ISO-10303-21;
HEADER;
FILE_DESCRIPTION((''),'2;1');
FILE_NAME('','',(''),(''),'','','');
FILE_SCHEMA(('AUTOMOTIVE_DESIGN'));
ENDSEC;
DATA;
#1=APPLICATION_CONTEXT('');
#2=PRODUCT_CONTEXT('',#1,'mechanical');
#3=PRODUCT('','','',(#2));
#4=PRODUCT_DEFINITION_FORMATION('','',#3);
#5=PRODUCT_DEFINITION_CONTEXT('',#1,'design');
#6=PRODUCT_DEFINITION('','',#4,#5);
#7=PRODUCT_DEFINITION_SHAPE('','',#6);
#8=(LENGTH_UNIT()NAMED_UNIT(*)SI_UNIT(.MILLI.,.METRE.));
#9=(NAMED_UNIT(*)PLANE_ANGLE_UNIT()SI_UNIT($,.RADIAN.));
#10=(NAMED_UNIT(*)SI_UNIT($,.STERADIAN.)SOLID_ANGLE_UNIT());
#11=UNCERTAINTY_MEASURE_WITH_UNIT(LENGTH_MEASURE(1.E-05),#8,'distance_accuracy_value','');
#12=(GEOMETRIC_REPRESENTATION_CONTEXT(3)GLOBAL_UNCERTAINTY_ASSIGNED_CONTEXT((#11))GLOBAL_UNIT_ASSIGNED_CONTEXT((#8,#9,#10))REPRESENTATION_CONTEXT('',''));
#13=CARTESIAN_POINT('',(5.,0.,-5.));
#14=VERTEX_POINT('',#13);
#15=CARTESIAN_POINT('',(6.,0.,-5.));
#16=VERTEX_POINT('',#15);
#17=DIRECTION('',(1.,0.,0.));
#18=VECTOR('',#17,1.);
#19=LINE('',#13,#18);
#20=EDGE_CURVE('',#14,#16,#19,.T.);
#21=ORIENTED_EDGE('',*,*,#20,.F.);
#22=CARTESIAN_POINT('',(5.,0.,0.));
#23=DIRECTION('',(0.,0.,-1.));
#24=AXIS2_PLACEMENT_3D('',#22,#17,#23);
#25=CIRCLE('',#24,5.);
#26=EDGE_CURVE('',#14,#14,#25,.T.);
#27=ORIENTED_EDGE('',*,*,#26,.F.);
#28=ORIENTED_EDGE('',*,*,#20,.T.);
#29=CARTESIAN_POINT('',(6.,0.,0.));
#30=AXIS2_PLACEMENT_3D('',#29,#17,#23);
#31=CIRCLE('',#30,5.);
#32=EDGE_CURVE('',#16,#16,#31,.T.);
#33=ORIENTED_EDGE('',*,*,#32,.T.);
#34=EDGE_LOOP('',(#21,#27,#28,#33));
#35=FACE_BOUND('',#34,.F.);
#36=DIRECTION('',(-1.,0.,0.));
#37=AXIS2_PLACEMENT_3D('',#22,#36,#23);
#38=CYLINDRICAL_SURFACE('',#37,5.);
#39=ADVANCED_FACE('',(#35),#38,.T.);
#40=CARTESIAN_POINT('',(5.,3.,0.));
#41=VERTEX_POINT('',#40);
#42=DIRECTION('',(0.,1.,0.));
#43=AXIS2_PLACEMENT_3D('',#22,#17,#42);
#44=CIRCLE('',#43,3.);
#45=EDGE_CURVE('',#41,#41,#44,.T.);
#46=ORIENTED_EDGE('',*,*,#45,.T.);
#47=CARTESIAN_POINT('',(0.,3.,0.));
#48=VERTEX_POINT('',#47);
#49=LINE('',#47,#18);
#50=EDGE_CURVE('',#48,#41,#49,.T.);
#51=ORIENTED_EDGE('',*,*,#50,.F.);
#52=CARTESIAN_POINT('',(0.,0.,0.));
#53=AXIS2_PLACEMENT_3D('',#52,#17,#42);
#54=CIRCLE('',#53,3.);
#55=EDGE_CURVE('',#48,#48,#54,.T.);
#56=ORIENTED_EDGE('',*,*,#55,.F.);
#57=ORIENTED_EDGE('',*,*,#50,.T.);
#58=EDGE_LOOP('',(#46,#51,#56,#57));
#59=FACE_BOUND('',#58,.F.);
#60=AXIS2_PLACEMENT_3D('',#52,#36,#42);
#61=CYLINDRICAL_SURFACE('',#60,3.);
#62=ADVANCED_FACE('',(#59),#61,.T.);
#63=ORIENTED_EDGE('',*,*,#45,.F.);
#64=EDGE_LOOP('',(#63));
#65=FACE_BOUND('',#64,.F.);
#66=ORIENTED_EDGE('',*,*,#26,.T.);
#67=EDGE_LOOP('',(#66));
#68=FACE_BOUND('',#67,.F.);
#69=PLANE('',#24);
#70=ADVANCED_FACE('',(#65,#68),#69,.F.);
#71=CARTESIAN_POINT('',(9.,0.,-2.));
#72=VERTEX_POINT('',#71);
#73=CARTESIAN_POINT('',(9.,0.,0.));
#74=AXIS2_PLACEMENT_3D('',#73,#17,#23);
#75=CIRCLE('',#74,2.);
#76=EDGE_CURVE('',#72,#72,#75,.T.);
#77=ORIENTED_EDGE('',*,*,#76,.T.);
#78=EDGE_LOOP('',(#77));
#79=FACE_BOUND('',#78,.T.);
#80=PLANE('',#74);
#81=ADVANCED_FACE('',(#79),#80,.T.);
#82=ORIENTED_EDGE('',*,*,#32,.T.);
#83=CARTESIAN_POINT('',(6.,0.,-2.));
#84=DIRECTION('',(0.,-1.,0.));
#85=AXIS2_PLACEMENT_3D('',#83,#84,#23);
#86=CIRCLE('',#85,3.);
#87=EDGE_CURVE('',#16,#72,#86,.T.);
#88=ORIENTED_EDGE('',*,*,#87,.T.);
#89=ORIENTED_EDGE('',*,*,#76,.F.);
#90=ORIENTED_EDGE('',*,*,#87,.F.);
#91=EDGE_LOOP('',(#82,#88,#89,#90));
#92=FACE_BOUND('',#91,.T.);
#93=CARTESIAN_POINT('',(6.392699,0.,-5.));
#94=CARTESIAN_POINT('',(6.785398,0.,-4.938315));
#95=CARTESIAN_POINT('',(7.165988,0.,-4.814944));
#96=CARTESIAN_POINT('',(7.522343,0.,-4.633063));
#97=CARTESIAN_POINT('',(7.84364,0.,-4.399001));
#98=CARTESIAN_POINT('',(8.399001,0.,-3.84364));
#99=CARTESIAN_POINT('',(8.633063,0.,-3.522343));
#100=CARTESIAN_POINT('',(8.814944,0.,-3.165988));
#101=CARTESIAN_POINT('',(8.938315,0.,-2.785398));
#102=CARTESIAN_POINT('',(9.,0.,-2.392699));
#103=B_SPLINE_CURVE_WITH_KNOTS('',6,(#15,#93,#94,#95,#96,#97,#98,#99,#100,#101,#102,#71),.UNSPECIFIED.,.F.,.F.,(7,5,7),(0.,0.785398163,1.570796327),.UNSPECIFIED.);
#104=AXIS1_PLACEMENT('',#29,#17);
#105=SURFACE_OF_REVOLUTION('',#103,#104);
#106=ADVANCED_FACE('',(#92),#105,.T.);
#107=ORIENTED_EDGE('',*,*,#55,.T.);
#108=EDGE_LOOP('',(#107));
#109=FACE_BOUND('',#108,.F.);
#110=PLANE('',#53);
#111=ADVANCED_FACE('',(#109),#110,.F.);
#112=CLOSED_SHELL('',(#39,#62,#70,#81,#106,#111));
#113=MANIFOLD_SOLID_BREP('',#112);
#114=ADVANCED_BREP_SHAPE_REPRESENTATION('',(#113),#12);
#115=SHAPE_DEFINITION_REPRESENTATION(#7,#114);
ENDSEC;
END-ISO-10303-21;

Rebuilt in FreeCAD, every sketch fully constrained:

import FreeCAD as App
import Part
import Sketcher
Q = App.Units.Quantity


def edges_at(feature, points):
    """Names of the edges that pass closest to the given points."""
    edges = feature.Shape.Edges
    near = lambda p: min(range(len(edges)), key=lambda i: edges[i].distToShape(Part.Vertex(*p))[0])
    return sorted({f"Edge{near(p) + 1}" for p in points})

doc = App.newDocument("Part")
body = doc.addObject("PartDesign::Body", "Body")

# Sketch on YZ plane
sketch1 = body.newObject("Sketcher::SketchObject", "Sketch")
sketch1.AttachmentSupport = (doc.getObject("YZ_Plane"), [""])
sketch1.MapMode = "FlatFace"
sketch1.addGeometry(Part.Circle(App.Vector(0, 0, 0), App.Vector(0, 0, 1), 3), False)
sketch1.addConstraint(Sketcher.Constraint("Coincident", 0, 3, -1, 1))
sketch1.addConstraint(Sketcher.Constraint("Diameter", 0, Q("6 mm")))
pad1 = body.newObject("PartDesign::Pad", "Pad")
pad1.Profile = sketch1
pad1.Length = 5

# Sketch on YZ plane
sketch2 = body.newObject("Sketcher::SketchObject", "Sketch001")
sketch2.AttachmentSupport = (doc.getObject("YZ_Plane"), [""])
sketch2.MapMode = "FlatFace"
sketch2.AttachmentOffset = App.Placement(App.Vector(0, 0, 5), App.Rotation())
sketch2.addGeometry(Part.Circle(App.Vector(0, 0, 0), App.Vector(0, 0, 1), 5), False)
sketch2.addConstraint(Sketcher.Constraint("Coincident", 0, 3, -1, 1))
sketch2.addConstraint(Sketcher.Constraint("Diameter", 0, Q("10 mm")))
pad2 = body.newObject("PartDesign::Pad", "Pad001")
pad2.Profile = sketch2
pad2.Length = 4
doc.recompute()

fillet = body.newObject("PartDesign::Fillet", "Fillet")
fillet.Base = (pad2, edges_at(pad2, [(9, 0, 5)]))
fillet.Radius = 3

doc.recompute()
